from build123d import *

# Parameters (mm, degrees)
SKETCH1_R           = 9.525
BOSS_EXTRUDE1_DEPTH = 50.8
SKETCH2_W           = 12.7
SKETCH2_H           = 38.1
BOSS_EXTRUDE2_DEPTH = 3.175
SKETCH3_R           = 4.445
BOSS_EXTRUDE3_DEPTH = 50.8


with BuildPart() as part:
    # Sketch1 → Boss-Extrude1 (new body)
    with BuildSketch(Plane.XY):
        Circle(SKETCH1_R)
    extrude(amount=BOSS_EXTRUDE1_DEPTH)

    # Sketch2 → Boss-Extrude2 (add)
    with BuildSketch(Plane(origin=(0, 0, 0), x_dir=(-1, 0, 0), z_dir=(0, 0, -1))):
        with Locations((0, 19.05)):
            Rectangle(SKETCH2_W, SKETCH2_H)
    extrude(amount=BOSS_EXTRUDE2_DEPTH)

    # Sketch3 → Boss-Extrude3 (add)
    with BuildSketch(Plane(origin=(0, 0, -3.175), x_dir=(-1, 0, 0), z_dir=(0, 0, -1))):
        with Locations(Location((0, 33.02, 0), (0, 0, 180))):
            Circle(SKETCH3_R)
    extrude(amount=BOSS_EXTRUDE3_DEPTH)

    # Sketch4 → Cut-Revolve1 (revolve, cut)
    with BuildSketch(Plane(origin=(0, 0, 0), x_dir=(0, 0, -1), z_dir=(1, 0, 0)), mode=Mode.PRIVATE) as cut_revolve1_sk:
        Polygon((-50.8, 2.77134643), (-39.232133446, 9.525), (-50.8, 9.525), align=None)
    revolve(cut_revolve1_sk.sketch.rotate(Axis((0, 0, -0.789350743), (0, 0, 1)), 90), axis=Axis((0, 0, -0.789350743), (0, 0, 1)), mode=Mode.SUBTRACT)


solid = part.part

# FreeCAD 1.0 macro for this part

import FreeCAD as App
import Part
import Sketcher
from FreeCAD import Vector
Q = App.Units.Quantity

doc = App.newDocument("Part")
body = doc.addObject("PartDesign::Body", "Body")

sketch1 = body.newObject("Sketcher::SketchObject", "Sketch")
sketch1.AttachmentSupport = (doc.getObject("XY_Plane"), [""])
sketch1.MapMode = "FlatFace"
sketch1.addGeometry(Part.Circle(Vector(0, 0, 0), Vector(0, 0, 1), 9.525), False)
sketch1.addConstraint([
    Sketcher.Constraint("Coincident", 0, 3, -1, 1),
    Sketcher.Constraint("Diameter", 0, Q("0.75 in")),
])
pad1 = body.newObject("PartDesign::Pad", "Pad")
pad1.Profile = sketch1
pad1.Length = Q("2 in")

sketch2 = body.newObject("Sketcher::SketchObject", "Sketch001")
sketch2.AttachmentSupport = (doc.getObject("XY_Plane"), [""])
sketch2.MapMode = "FlatFace"
sketch2.addGeometry([
    Part.LineSegment(Vector(6.35, 38.1, 0), Vector(6.35, 0, 0)),
    Part.LineSegment(Vector(6.35, 0, 0), Vector(-6.35, 0, 0)),
    Part.LineSegment(Vector(-6.35, 0, 0), Vector(-6.35, 38.1, 0)),
    Part.LineSegment(Vector(-6.35, 38.1, 0), Vector(6.35, 38.1, 0)),
], False)
sketch2.addConstraint([
    Sketcher.Constraint("Coincident", 0, 2, 1, 1),
    Sketcher.Constraint("Coincident", 1, 2, 2, 1),
    Sketcher.Constraint("Coincident", 2, 2, 3, 1),
    Sketcher.Constraint("Coincident", 3, 2, 0, 1),
    Sketcher.Constraint("Vertical", 0),
    Sketcher.Constraint("Horizontal", 1),
    Sketcher.Constraint("Vertical", 2),
    Sketcher.Constraint("Horizontal", 3),
    Sketcher.Constraint("Symmetric", 0, 2, 1, 2, -1, 1),
    Sketcher.Constraint("DistanceX", 1, 2, 1, 1, Q("0.5 in")),
    Sketcher.Constraint("DistanceY", 0, 2, 0, 1, Q("1.5 in")),
])
pad2 = body.newObject("PartDesign::Pad", "Pad001")
pad2.Profile = sketch2
pad2.Length = Q("0.125 in")
pad2.Reversed = True

sketch3 = body.newObject("Sketcher::SketchObject", "Sketch002")
sketch3.AttachmentSupport = (doc.getObject("XY_Plane"), [""])
sketch3.MapMode = "FlatFace"
sketch3.AttachmentOffset = App.Placement(Vector(0, 0, -0.125 * 25.4), App.Rotation())
sketch3.addGeometry(Part.Circle(Vector(0, 33.02, 0), Vector(0, 0, 1), 4.445), False)
sketch3.addConstraint([
    Sketcher.Constraint("PointOnObject", 0, 3, -2),
    Sketcher.Constraint("Diameter", 0, Q("0.35 in")),
    Sketcher.Constraint("DistanceY", -1, 1, 0, 3, Q("1.3 in")),
])
pad3 = body.newObject("PartDesign::Pad", "Pad002")
pad3.Profile = sketch3
pad3.Length = Q("2 in")
pad3.Reversed = True

sketch4 = body.newObject("Sketcher::SketchObject", "Sketch003")
sketch4.AttachmentSupport = (doc.getObject("YZ_Plane"), [""])
sketch4.MapMode = "FlatFace"
sketch4.addGeometry([
    Part.LineSegment(Vector(2.771346, 50.8, 0), Vector(9.525, 39.232133, 0)),
    Part.LineSegment(Vector(9.525, 39.232133, 0), Vector(9.525, 50.8, 0)),
    Part.LineSegment(Vector(9.525, 50.8, 0), Vector(2.771346, 50.8, 0)),
], False)
sketch4.addConstraint([
    Sketcher.Constraint("Coincident", 0, 2, 1, 1),
    Sketcher.Constraint("Coincident", 1, 2, 2, 1),
    Sketcher.Constraint("Coincident", 2, 2, 0, 1),
    Sketcher.Constraint("Vertical", 1),
    Sketcher.Constraint("Horizontal", 2),
    Sketcher.Constraint("DistanceY", -1, 1, 1, 2, Q("2 in")),
    Sketcher.Constraint("DistanceX", -1, 1, 0, 2, Q("0.375 in")),
    Sketcher.Constraint("Distance", 0, 13.39505),
    Sketcher.Constraint("DistanceX", 2, 2, 2, 1, 6.753654),
])
groove = body.newObject("PartDesign::Groove", "Groove")
groove.Profile = sketch4
groove.ReferenceAxis = (sketch4, ["V_Axis"])
groove.Angle = 360

doc.recompute()
